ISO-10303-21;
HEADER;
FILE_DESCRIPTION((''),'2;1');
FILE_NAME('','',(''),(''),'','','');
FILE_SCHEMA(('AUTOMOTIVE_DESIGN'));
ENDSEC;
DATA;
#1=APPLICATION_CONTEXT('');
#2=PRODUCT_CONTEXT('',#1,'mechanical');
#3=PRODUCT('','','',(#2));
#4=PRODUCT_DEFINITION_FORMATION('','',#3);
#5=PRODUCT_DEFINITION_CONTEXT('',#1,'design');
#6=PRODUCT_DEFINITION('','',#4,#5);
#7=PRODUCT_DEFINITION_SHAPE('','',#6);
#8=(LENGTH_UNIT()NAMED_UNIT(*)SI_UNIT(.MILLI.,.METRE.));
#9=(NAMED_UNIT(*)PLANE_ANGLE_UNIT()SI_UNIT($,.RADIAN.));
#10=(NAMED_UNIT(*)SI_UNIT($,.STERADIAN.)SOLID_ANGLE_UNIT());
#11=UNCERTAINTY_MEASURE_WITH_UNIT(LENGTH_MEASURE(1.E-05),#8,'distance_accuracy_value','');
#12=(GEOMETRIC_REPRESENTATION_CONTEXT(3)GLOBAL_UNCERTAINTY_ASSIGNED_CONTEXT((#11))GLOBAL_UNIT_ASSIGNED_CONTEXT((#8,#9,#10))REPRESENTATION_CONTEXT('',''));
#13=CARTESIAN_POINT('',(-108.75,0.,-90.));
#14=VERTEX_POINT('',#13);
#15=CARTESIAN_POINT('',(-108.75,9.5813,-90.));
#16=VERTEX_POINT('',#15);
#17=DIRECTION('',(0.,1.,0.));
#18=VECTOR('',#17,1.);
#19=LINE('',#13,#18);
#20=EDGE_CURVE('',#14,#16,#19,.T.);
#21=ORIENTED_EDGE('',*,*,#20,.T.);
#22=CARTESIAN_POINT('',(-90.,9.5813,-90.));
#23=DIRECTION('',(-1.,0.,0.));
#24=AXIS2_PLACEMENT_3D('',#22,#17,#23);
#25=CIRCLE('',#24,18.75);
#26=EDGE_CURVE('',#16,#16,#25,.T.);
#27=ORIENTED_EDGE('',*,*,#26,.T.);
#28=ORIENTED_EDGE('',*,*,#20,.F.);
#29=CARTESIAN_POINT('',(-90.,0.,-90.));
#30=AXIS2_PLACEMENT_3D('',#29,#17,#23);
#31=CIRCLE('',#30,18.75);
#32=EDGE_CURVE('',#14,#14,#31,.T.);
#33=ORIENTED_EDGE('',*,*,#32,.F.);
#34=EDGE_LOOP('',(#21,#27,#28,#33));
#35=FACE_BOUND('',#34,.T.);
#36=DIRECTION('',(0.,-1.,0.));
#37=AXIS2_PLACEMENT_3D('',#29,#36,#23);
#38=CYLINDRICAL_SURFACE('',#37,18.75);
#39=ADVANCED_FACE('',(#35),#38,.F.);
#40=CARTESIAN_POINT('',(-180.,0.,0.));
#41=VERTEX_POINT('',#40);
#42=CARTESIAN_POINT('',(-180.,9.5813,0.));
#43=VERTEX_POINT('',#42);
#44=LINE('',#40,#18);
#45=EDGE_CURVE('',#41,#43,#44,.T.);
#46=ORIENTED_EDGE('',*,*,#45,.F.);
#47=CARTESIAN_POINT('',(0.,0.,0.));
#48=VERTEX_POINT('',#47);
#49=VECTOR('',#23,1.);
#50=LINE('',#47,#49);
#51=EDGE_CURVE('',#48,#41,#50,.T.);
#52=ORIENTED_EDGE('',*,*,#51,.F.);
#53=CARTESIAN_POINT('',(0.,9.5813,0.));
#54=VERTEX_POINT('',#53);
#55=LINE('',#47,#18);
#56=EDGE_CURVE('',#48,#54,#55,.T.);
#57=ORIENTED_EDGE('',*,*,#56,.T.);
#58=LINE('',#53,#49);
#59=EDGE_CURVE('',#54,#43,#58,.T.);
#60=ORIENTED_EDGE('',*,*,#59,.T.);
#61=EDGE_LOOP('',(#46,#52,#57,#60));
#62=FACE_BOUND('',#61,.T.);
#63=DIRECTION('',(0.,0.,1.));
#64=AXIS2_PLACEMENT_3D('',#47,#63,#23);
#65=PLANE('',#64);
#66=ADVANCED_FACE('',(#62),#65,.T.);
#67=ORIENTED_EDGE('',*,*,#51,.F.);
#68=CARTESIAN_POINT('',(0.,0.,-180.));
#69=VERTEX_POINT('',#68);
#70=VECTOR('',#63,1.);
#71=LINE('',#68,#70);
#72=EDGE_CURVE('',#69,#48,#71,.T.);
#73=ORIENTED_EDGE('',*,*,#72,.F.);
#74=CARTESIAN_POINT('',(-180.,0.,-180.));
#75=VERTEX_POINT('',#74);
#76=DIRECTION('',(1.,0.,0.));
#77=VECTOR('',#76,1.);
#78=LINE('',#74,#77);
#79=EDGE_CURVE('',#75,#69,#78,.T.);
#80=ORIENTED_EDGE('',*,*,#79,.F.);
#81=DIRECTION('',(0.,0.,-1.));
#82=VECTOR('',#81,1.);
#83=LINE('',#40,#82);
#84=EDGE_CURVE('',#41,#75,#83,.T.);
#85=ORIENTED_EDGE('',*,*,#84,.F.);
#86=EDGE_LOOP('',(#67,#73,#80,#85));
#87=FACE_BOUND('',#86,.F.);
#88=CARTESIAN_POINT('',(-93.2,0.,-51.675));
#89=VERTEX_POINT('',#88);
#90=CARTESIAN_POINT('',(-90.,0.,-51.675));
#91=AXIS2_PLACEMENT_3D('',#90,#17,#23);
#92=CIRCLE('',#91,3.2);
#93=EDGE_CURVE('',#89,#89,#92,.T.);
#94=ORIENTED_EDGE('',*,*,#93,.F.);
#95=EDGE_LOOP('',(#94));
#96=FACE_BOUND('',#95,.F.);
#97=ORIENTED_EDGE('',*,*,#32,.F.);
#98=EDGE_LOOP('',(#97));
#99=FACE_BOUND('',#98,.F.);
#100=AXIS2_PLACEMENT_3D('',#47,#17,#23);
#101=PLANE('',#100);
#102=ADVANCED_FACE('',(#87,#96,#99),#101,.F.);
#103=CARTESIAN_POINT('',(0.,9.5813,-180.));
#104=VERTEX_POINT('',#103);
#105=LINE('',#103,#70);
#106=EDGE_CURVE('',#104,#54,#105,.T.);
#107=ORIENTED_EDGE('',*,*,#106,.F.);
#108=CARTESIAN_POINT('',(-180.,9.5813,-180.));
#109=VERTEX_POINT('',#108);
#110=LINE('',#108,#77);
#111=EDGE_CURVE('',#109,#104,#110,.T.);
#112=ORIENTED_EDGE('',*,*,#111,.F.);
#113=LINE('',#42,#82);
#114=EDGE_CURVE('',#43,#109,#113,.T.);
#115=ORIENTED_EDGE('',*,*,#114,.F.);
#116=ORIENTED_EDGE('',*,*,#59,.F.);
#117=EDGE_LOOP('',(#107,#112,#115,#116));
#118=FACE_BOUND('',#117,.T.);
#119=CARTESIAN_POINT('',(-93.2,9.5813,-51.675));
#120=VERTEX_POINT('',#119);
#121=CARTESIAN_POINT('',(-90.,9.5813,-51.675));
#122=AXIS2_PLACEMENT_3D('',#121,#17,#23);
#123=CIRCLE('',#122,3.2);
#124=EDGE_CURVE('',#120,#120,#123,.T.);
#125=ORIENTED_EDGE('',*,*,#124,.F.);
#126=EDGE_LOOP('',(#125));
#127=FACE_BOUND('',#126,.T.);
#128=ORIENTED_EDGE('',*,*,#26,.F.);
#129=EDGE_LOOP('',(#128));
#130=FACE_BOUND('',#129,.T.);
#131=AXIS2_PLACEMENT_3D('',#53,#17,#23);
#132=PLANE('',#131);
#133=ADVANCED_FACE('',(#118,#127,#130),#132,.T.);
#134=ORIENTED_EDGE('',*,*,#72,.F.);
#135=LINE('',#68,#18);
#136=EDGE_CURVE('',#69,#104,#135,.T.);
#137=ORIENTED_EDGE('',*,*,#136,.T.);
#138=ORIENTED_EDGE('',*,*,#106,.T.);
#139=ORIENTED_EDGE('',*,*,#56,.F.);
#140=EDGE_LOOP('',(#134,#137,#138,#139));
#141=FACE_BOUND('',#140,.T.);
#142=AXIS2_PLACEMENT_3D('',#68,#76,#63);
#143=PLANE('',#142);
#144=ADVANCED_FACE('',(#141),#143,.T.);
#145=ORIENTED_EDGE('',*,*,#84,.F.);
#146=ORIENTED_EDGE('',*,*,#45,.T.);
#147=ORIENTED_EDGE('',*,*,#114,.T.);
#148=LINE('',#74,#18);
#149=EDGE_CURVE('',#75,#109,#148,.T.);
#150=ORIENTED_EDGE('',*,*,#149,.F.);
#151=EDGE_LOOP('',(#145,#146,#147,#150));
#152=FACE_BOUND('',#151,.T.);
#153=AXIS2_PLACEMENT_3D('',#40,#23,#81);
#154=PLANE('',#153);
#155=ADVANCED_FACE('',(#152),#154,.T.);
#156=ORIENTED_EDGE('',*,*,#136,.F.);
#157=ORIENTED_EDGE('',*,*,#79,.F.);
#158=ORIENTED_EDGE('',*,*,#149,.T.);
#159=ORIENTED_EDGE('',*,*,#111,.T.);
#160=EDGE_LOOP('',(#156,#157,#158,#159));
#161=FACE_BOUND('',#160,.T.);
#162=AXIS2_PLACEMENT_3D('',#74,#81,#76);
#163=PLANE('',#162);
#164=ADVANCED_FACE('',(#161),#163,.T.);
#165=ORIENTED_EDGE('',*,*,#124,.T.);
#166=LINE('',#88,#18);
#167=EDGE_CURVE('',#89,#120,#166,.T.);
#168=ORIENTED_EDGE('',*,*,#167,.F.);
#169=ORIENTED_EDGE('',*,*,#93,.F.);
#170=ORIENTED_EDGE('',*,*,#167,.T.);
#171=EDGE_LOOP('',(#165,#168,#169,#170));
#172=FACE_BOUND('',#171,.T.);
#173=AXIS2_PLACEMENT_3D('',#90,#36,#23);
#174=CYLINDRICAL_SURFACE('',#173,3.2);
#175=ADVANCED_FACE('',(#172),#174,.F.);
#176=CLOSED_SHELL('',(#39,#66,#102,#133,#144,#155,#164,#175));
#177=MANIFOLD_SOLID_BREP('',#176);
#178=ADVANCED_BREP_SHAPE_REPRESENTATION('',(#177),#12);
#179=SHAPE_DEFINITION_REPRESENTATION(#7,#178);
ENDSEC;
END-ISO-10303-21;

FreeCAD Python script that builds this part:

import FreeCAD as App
import Part
import Sketcher

V = App.Vector


def add_polygon(sketch, points):
    """Adds a closed chain of lines whose ends are joined by coincident constraints."""
    first, n = sketch.GeometryCount, len(points)
    for a, b in zip(points, points[1:] + points[:1]):
        sketch.addGeometry(Part.LineSegment(App.Vector(*a, 0), App.Vector(*b, 0)), False)
    for i in range(n):
        sketch.addConstraint(Sketcher.Constraint("Coincident", first + i, 2, first + (i + 1) % n, 1))

doc = App.newDocument("Part")
body = doc.addObject("PartDesign::Body", "Body")

sketch1 = body.newObject("Sketcher::SketchObject", "Sketch")
sketch1.AttachmentSupport = (doc.getObject("XZ_Plane"), [""])
sketch1.MapMode = "FlatFace"
add_polygon(sketch1, [(-180, 0), (0, 0), (0, -180), (-180, -180)])
sketch1.addGeometry(Part.Circle(V(-90, -90, 0), V(0, 0, 1), 18.75), False)
sketch1.addGeometry(Part.Circle(V(-90, -51.675, 0), V(0, 0, 1), 3.2), False)
sketch1.addConstraint([
    Sketcher.Constraint("Horizontal", 0),
    Sketcher.Constraint("Vertical", 1),
    Sketcher.Constraint("Horizontal", 2),
    Sketcher.Constraint("Vertical", 3),
    Sketcher.Constraint("Coincident", 0, 2, -1, 1),
    Sketcher.Constraint("Vertical", 4, 3, 5, 3),
    Sketcher.Constraint("Equal", 2, 1),
    Sketcher.Constraint("Diameter", 4, 37.5),
    Sketcher.Constraint("Diameter", 5, 6.4),
    Sketcher.Constraint("DistanceX", 0, 1, 0, 2, 180.0),
    Sketcher.Constraint("DistanceX", 4, 3, -1, 1, 90.0),
    Sketcher.Constraint("DistanceY", 4, 3, -1, 1, 90.0),
    Sketcher.Constraint("DistanceY", 4, 3, 5, 3, 38.325),
])
pad1 = body.newObject("PartDesign::Pad", "Pad")
pad1.Profile = sketch1
pad1.Length = 9.5813
pad1.Reversed = True

doc.recompute()
